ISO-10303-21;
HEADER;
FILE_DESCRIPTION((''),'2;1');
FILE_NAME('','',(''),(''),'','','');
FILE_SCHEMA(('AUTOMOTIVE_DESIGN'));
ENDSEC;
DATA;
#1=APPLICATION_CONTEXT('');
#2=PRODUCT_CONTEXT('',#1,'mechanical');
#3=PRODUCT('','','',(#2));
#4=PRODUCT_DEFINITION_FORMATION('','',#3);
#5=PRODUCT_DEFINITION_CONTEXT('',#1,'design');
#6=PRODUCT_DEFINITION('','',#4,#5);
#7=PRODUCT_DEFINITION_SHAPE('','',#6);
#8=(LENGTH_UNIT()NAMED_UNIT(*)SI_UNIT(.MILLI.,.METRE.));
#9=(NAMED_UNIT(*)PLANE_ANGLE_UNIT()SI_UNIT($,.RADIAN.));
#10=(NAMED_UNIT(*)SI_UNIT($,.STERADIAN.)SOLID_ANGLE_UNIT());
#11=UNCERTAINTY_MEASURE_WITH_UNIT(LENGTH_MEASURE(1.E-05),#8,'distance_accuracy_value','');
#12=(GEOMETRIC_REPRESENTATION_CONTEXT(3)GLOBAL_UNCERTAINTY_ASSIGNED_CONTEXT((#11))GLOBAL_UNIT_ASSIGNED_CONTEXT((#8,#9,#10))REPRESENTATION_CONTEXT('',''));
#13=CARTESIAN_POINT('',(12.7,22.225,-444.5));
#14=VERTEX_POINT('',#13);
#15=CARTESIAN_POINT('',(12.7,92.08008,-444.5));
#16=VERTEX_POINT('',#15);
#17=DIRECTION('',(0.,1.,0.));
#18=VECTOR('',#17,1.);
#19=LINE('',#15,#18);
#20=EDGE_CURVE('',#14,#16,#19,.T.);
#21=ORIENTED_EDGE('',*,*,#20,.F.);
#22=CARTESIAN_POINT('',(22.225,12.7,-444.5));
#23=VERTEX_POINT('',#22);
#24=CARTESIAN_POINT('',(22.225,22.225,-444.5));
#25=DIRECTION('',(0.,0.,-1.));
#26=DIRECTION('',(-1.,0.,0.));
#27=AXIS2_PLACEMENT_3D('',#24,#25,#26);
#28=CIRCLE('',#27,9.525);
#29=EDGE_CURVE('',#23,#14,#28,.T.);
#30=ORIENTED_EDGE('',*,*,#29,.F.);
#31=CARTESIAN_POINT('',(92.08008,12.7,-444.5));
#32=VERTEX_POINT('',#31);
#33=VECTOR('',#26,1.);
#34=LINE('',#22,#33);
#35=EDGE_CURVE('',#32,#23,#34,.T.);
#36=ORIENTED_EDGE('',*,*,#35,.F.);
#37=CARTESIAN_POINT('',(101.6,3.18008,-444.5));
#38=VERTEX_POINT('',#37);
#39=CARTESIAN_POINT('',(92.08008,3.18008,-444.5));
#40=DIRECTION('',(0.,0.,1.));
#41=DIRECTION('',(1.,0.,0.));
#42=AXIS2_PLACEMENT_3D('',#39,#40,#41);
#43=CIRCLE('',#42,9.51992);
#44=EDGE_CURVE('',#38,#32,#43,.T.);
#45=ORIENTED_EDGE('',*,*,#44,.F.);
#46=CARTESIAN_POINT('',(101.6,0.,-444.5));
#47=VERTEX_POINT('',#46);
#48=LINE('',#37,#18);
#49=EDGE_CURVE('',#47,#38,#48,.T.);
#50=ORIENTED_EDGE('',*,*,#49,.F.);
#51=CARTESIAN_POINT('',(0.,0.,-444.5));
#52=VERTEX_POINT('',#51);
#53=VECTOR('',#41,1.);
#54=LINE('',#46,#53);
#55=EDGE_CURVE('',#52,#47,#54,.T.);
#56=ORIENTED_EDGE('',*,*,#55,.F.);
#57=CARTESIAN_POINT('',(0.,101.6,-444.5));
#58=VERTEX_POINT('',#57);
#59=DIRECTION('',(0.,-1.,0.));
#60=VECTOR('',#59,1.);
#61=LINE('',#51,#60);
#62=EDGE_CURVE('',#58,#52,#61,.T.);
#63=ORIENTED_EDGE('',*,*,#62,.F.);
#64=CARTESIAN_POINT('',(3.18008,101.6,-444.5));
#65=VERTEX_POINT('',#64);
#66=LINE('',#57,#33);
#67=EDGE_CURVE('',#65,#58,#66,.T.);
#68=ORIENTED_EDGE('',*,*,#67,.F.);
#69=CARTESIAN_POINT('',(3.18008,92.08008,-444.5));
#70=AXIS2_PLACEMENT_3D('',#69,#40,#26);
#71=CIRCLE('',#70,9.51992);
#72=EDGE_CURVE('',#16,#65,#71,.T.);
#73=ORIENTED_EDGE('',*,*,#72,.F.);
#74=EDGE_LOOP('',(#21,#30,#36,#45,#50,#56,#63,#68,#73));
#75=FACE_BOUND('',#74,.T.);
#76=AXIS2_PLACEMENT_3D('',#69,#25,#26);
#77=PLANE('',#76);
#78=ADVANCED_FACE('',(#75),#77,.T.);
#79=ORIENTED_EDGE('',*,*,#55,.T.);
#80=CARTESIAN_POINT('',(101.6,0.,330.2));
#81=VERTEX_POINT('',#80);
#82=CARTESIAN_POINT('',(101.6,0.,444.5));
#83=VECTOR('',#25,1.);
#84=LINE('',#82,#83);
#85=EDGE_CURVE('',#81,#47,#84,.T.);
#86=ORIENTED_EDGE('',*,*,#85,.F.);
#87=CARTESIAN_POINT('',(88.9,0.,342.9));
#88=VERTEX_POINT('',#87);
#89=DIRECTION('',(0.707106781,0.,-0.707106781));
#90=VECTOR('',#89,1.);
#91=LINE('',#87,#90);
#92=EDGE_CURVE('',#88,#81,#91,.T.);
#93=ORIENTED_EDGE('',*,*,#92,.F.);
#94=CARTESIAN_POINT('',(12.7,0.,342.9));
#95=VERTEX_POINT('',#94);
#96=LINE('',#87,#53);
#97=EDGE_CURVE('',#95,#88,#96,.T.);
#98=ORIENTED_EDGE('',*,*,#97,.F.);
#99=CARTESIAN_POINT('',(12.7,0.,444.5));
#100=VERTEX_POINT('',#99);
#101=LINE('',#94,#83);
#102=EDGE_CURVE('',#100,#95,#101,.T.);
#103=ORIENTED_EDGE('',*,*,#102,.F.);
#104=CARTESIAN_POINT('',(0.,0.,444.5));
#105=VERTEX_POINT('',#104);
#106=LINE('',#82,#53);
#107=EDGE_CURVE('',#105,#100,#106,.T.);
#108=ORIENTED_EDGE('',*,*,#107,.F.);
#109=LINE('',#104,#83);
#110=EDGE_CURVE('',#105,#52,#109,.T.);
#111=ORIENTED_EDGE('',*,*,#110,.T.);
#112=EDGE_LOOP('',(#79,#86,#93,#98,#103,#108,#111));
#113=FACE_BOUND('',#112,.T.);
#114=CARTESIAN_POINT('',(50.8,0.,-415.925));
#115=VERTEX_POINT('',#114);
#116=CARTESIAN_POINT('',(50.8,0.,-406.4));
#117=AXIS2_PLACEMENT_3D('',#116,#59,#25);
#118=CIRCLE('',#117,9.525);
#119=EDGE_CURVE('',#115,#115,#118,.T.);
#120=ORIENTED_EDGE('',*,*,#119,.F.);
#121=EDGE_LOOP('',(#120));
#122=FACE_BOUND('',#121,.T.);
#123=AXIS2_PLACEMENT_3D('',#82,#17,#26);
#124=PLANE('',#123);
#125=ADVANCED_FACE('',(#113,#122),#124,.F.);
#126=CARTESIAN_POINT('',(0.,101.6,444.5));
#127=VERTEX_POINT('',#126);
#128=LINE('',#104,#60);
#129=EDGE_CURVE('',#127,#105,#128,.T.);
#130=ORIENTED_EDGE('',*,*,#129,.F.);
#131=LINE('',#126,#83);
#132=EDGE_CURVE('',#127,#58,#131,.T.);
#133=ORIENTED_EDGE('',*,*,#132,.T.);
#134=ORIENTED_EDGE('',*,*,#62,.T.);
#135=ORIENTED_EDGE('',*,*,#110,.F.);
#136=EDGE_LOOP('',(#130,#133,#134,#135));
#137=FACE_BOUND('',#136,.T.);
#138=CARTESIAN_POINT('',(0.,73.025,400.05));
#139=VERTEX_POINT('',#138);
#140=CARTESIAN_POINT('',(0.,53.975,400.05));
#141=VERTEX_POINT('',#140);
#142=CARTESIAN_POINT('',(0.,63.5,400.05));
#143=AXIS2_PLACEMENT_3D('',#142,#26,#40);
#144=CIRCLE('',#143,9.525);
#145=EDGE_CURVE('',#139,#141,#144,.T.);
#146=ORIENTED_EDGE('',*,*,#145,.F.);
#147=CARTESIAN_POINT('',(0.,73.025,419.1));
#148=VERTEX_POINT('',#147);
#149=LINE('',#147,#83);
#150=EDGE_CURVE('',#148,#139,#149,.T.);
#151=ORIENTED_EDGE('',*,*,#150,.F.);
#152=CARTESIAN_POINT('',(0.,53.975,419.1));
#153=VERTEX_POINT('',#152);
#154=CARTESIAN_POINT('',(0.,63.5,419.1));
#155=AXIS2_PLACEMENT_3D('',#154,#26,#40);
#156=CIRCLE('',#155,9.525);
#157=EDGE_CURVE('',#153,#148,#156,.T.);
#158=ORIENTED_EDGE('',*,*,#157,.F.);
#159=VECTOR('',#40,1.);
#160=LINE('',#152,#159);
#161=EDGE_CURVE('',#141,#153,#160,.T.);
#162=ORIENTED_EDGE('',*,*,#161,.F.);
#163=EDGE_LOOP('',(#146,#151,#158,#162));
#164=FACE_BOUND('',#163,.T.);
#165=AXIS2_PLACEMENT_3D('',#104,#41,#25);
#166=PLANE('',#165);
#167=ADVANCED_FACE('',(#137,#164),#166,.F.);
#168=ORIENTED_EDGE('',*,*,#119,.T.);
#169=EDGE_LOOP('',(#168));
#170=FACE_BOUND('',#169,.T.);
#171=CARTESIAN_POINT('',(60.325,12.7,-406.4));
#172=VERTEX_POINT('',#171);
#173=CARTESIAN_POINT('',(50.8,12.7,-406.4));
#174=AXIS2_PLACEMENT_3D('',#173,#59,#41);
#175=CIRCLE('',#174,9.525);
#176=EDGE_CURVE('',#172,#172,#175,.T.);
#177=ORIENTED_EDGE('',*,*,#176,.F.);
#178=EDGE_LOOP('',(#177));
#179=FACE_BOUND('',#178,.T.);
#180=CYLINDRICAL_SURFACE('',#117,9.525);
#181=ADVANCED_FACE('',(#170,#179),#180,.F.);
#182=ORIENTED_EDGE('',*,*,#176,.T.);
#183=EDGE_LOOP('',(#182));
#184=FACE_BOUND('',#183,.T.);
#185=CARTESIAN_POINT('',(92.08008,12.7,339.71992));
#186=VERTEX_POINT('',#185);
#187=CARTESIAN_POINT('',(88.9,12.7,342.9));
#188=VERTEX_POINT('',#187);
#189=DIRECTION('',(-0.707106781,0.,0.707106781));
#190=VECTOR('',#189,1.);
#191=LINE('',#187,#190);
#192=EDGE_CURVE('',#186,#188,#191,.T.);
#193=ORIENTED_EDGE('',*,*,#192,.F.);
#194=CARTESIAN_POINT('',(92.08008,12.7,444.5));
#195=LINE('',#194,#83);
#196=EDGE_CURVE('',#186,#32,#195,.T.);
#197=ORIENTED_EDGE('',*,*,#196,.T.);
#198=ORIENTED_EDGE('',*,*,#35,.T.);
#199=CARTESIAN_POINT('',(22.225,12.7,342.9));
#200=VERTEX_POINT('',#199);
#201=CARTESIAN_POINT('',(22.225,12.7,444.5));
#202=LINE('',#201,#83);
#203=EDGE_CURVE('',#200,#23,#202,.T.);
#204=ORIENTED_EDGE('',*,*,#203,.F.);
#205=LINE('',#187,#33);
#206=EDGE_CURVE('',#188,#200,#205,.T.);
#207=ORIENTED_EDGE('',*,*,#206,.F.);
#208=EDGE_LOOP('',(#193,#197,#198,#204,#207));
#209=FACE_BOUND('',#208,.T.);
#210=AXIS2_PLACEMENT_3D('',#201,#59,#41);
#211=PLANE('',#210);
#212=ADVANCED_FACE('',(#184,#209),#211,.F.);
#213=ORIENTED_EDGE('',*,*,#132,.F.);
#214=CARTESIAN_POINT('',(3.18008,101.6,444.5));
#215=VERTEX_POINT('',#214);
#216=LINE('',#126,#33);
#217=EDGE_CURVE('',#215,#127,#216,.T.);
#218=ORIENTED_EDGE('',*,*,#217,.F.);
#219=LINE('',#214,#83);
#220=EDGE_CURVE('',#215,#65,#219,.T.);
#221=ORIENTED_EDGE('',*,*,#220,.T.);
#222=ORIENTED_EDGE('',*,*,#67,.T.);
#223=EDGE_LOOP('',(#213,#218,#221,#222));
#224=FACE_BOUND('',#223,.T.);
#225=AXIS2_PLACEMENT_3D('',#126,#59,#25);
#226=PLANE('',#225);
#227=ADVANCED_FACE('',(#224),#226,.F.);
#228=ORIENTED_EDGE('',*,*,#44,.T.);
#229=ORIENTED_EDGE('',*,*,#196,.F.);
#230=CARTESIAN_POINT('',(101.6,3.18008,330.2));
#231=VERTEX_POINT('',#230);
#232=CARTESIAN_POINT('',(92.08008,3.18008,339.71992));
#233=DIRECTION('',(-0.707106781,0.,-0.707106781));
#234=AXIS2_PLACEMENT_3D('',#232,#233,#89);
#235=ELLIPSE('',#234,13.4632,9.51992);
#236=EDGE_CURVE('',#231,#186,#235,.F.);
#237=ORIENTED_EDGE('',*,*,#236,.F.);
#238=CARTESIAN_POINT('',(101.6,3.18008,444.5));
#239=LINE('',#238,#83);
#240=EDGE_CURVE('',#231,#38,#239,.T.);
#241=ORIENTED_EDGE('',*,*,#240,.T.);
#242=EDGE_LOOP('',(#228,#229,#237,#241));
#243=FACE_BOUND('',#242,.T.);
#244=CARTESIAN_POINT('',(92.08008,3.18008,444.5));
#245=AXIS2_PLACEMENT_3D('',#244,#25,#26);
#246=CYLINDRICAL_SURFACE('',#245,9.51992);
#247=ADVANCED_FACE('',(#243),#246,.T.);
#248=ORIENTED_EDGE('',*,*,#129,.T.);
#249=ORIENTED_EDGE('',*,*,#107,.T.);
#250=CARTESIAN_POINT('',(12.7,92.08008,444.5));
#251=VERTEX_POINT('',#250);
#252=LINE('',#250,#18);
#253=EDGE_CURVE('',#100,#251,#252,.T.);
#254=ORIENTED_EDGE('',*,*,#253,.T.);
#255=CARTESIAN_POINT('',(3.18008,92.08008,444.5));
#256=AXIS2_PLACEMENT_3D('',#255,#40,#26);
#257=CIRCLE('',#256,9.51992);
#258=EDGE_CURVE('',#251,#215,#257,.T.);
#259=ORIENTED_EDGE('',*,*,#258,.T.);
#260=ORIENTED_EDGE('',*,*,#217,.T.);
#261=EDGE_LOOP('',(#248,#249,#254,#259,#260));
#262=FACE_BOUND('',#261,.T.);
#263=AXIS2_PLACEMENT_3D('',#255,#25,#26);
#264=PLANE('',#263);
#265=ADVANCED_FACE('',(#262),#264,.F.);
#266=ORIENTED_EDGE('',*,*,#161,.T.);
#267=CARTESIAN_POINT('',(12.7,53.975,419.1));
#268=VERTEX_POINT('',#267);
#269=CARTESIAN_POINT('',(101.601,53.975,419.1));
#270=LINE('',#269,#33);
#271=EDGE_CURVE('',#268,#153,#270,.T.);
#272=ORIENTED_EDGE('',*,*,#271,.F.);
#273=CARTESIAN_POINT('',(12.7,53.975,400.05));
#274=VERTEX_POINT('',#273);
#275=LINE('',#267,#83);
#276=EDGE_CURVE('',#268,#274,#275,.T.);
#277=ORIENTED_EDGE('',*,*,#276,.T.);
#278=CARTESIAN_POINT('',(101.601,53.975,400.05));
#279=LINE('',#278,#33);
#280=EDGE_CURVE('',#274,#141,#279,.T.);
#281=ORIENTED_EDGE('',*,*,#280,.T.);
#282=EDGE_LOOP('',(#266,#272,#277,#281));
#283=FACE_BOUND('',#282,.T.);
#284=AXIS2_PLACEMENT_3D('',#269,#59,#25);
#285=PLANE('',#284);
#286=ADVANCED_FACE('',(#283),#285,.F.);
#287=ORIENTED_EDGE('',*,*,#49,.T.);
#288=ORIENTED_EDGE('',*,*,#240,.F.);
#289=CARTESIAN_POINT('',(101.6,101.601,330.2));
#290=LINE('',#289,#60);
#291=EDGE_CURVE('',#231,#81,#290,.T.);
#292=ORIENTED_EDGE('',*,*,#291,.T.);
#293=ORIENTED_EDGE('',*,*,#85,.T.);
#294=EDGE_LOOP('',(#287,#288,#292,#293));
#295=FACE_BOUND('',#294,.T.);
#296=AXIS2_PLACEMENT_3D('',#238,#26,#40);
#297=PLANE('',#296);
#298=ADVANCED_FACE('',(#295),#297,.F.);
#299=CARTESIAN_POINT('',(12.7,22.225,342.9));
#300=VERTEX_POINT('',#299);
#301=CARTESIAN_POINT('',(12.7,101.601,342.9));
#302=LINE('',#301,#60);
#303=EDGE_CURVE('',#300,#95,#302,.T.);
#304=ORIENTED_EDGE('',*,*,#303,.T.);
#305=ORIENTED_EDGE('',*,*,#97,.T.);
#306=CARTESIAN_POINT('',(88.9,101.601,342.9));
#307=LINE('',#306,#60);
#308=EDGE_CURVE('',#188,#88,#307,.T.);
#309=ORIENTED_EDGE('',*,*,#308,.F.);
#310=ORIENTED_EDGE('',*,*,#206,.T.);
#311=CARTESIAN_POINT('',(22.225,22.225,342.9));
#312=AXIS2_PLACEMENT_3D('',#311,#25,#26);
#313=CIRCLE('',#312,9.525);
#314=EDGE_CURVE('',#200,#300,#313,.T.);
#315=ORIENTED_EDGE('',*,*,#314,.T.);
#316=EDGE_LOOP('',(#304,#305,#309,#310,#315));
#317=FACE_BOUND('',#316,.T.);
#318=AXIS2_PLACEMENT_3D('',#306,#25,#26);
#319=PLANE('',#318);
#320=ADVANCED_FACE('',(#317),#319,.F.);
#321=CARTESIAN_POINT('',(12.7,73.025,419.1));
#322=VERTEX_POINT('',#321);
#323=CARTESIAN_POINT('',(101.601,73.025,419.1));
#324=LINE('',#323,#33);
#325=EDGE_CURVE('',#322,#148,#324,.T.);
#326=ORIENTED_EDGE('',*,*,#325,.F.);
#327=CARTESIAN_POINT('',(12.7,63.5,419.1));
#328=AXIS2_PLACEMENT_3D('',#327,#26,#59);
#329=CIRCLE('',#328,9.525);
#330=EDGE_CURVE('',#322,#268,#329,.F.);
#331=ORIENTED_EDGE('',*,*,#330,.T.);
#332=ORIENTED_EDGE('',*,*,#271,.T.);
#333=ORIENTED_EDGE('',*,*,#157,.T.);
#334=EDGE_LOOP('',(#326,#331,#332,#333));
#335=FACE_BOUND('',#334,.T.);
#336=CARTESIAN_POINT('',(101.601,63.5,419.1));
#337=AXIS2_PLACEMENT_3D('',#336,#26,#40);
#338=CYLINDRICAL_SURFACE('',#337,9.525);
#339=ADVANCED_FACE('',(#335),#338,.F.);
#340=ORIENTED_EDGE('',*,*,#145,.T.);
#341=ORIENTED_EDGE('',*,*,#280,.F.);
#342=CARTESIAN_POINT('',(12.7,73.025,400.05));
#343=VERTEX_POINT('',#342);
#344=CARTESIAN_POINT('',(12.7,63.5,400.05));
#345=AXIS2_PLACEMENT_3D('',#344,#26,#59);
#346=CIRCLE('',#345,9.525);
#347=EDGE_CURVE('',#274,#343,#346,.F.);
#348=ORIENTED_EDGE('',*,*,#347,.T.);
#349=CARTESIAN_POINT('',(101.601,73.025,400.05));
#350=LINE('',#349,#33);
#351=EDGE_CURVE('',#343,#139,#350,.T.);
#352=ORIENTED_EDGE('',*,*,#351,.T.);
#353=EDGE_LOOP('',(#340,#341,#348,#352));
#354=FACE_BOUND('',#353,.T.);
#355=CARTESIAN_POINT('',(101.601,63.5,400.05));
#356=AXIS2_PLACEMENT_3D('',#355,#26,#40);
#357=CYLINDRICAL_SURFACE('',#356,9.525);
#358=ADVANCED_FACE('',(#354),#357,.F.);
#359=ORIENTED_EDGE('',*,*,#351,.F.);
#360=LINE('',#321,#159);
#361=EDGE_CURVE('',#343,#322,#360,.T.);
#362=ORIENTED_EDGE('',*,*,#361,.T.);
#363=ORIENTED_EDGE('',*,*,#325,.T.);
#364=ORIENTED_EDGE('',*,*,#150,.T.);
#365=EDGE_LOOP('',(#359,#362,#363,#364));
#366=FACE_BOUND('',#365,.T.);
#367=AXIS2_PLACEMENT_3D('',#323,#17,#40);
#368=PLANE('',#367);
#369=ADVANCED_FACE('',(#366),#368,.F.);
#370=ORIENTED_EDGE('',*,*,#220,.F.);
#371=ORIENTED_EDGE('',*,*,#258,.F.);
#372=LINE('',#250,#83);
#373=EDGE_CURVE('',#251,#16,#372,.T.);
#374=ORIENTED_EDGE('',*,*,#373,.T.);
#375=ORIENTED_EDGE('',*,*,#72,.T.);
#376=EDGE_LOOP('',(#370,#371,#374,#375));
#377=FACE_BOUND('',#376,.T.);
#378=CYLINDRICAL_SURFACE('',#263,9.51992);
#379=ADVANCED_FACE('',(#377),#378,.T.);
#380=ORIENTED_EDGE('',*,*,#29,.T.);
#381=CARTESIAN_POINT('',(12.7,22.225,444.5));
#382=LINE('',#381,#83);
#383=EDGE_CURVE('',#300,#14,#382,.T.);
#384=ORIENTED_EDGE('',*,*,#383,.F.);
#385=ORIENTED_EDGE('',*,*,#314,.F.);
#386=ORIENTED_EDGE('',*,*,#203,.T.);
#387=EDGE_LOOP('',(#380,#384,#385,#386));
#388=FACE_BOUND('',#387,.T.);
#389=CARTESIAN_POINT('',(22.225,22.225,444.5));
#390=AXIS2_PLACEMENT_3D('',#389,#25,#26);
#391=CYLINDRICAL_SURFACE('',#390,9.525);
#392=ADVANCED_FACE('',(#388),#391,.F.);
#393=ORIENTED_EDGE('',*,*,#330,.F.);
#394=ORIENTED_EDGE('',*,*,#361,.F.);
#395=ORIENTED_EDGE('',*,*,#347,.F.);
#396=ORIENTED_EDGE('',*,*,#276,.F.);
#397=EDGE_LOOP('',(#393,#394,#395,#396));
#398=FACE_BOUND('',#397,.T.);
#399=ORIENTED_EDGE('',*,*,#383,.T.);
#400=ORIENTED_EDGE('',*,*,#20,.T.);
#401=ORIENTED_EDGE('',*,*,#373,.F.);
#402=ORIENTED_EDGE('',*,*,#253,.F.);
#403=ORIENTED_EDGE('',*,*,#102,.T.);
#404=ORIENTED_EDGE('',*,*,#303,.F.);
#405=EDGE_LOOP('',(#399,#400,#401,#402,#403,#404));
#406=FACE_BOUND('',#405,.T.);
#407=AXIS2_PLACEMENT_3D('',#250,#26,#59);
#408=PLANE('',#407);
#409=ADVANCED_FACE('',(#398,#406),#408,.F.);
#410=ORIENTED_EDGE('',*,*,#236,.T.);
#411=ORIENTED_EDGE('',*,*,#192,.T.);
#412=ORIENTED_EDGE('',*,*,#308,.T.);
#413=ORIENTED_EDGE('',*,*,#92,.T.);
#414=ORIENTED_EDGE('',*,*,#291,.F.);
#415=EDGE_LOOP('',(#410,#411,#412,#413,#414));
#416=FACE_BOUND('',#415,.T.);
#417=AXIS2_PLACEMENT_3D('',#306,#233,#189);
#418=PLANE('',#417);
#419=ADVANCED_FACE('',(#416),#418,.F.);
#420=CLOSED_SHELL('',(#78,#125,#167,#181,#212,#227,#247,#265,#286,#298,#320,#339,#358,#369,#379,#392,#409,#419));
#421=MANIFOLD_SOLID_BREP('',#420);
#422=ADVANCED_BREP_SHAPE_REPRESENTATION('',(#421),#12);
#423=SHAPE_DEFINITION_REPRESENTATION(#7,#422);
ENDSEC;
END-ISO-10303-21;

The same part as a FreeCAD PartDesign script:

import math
import FreeCAD as App
import Part
import Sketcher
Q = App.Units.Quantity

doc = App.newDocument("Part")
body = doc.addObject("PartDesign::Body", "Body")

sketch1 = body.newObject("Sketcher::SketchObject", "Sketch")
sketch1.AttachmentSupport = (doc.getObject("XY_Plane"), [""])
sketch1.MapMode = "FlatFace"
sketch1.addGeometry(Part.LineSegment(App.Vector(0, 101.6, 0), App.Vector(0, 0, 0)), False)
sketch1.addGeometry(Part.LineSegment(App.Vector(0, 0, 0), App.Vector(101.6, 0, 0)), False)
sketch1.addGeometry(Part.LineSegment(App.Vector(101.6, 0, 0), App.Vector(101.6, 3.2, 0)), False)
sketch1.addGeometry(Part.ArcOfCircle(Part.Circle(App.Vector(92.1, 3.2, 0), App.Vector(0, 0, 1), 9.5), math.radians(0), math.radians(90)), False)
sketch1.addGeometry(Part.LineSegment(App.Vector(92.1, 12.7, 0), App.Vector(22.2, 12.7, 0)), False)
sketch1.addGeometry(Part.ArcOfCircle(Part.Circle(App.Vector(22.2, 22.2, 0), App.Vector(0, 0, 1), 9.5), math.radians(180), math.radians(270)), False)
sketch1.addGeometry(Part.LineSegment(App.Vector(12.7, 22.2, 0), App.Vector(12.7, 92.1, 0)), False)
sketch1.addGeometry(Part.ArcOfCircle(Part.Circle(App.Vector(3.2, 92.1, 0), App.Vector(0, 0, 1), 9.5), math.radians(0), math.radians(90)), False)
sketch1.addGeometry(Part.LineSegment(App.Vector(3.2, 101.6, 0), App.Vector(0, 101.6, 0)), False)
sketch1.addConstraint(Sketcher.Constraint("Coincident", 0, 2, 1, 1))
sketch1.addConstraint(Sketcher.Constraint("Coincident", 1, 2, 2, 1))
sketch1.addConstraint(Sketcher.Constraint("Tangent", 2, 2, 3, 1))
sketch1.addConstraint(Sketcher.Constraint("Tangent", 3, 2, 4, 1))
sketch1.addConstraint(Sketcher.Constraint("Tangent", 4, 2, 5, 2))
sketch1.addConstraint(Sketcher.Constraint("Tangent", 5, 1, 6, 1))
sketch1.addConstraint(Sketcher.Constraint("Tangent", 6, 2, 7, 1))
sketch1.addConstraint(Sketcher.Constraint("Tangent", 7, 2, 8, 1))
sketch1.addConstraint(Sketcher.Constraint("Coincident", 8, 2, 0, 1))
sketch1.addConstraint(Sketcher.Constraint("Vertical", 0))
sketch1.addConstraint(Sketcher.Constraint("Horizontal", 1))
sketch1.addConstraint(Sketcher.Constraint("Vertical", 2))
sketch1.addConstraint(Sketcher.Constraint("Horizontal", 4))
sketch1.addConstraint(Sketcher.Constraint("Vertical", 6))
sketch1.addConstraint(Sketcher.Constraint("Horizontal", 8))
sketch1.addConstraint(Sketcher.Constraint("Coincident", 0, 2, -1, 1))
sketch1.addConstraint(Sketcher.Constraint("Equal", 3, 7))
sketch1.addConstraint(Sketcher.Constraint("Equal", 1, 0))
sketch1.addConstraint(Sketcher.Constraint("Equal", 8, 2))
sketch1.addConstraint(Sketcher.Constraint("DistanceX", 1, 1, 1, 2, Q("4 in")))
sketch1.addConstraint(Sketcher.Constraint("Radius", 5, Q("0.375 in")))
sketch1.addConstraint(Sketcher.Constraint("DistanceY", -1, 1, 3, 2, Q("0.5 in")))
sketch1.addConstraint(Sketcher.Constraint("Radius", 3, Q("0.3748 in")))
pad1 = body.newObject("PartDesign::Pad", "Pad")
pad1.Profile = sketch1
pad1.Length = Q("35 in")
pad1.Midplane = True

sketch2 = body.newObject("Sketcher::SketchObject", "Sketch001")
sketch2.AttachmentSupport = (doc.getObject("XZ_Plane"), [""])
sketch2.MapMode = "FlatFace"
sketch2.addGeometry(Part.LineSegment(App.Vector(13, 343, 0), App.Vector(89, 343, 0)), False)
sketch2.addGeometry(Part.LineSegment(App.Vector(89, 343, 0), App.Vector(102, 330, 0)), False)
sketch2.addGeometry(Part.LineSegment(App.Vector(102, 330, 0), App.Vector(102, 444, 0)), False)
sketch2.addGeometry(Part.LineSegment(App.Vector(102, 444, 0), App.Vector(13, 444, 0)), False)
sketch2.addGeometry(Part.LineSegment(App.Vector(13, 444, 0), App.Vector(13, 343, 0)), False)
sketch2.addConstraint(Sketcher.Constraint("Coincident", 0, 2, 1, 1))
sketch2.addConstraint(Sketcher.Constraint("Coincident", 1, 2, 2, 1))
sketch2.addConstraint(Sketcher.Constraint("Coincident", 2, 2, 3, 1))
sketch2.addConstraint(Sketcher.Constraint("Coincident", 3, 2, 4, 1))
sketch2.addConstraint(Sketcher.Constraint("Coincident", 4, 2, 0, 1))
sketch2.addConstraint(Sketcher.Constraint("Horizontal", 0))
sketch2.addConstraint(Sketcher.Constraint("Vertical", 2))
sketch2.addConstraint(Sketcher.Constraint("Horizontal", 3))
sketch2.addConstraint(Sketcher.Constraint("Vertical", 4))
sketch2.addConstraint(Sketcher.Constraint("DistanceX", 0, 1, 0, 2, Q("3 in")))
sketch2.addConstraint(Sketcher.Constraint("DistanceY", 4, 2, 4, 1, Q("4 in")))
sketch2.addConstraint(Sketcher.Constraint("DistanceX", 3, 2, 3, 1, Q("3.5 in")))
sketch2.addConstraint(Sketcher.Constraint("DistanceY", 2, 1, 2, 2, Q("4.5 in")))
sketch2.addConstraint(Sketcher.Constraint("DistanceX", -1, 1, 1, 2, Q("4 in")))
sketch2.addConstraint(Sketcher.Constraint("DistanceY", -1, 1, 1, 2, Q("13 in")))
pocket1 = body.newObject("PartDesign::Pocket", "Pocket")
pocket1.Profile = sketch2
pocket1.Length = Q("0.875 in")

sketch3 = body.newObject("Sketcher::SketchObject", "Sketch002")
sketch3.AttachmentSupport = (doc.getObject("YZ_Plane"), [""])
sketch3.MapMode = "FlatFace"
sketch3.addGeometry(Part.LineSegment(App.Vector(54, 400, 0), App.Vector(54, 419, 0)), False)
sketch3.addGeometry(Part.ArcOfCircle(Part.Circle(App.Vector(64, 419, 0), App.Vector(0, 0, 1), 10), math.radians(0), math.radians(180)), False)
sketch3.addGeometry(Part.LineSegment(App.Vector(73, 419, 0), App.Vector(73, 400, 0)), False)
sketch3.addGeometry(Part.ArcOfCircle(Part.Circle(App.Vector(64, 400, 0), App.Vector(0, 0, 1), 10), math.radians(180), math.radians(360)), False)
sketch3.addConstraint(Sketcher.Constraint("Tangent", 0, 2, 1, 2))
sketch3.addConstraint(Sketcher.Constraint("Tangent", 1, 1, 2, 1))
sketch3.addConstraint(Sketcher.Constraint("Tangent", 2, 2, 3, 2))
sketch3.addConstraint(Sketcher.Constraint("Tangent", 3, 1, 0, 1))
sketch3.addConstraint(Sketcher.Constraint("Vertical", 0))
sketch3.addConstraint(Sketcher.Constraint("Vertical", 2))
sketch3.addConstraint(Sketcher.Constraint("Radius", 1, Q("0.375 in")))
sketch3.addConstraint(Sketcher.Constraint("DistanceY", 0, 1, 0, 2, Q("0.75 in")))
sketch3.addConstraint(Sketcher.Constraint("DistanceX", -1, 1, 1, 3, Q("2.5 in")))
sketch3.addConstraint(Sketcher.Constraint("DistanceY", -1, 1, 1, 3, Q("16.5 in")))
pocket2 = body.newObject("PartDesign::Pocket", "Pocket001")
pocket2.Profile = sketch3
pocket2.Type = "UpToFirst"
pocket2.Reversed = True

sketch4 = body.newObject("Sketcher::SketchObject", "Sketch003")
sketch4.AttachmentSupport = (doc.getObject("XZ_Plane"), [""])
sketch4.MapMode = "FlatFace"
sketch4.addGeometry(Part.Circle(App.Vector(51, -406, 0), App.Vector(0, 0, 1), 10), False)
sketch4.addConstraint(Sketcher.Constraint("Diameter", 0, Q("0.75 in")))
sketch4.addConstraint(Sketcher.Constraint("DistanceX", -1, 1, 0, 3, Q("2 in")))
sketch4.addConstraint(Sketcher.Constraint("DistanceY", 0, 3, -1, 1, Q("16 in")))
doc.recompute()
hole = body.newObject("PartDesign::Hole", "Hole")
hole.Profile = sketch4
hole.ThreadType = "None"
hole.Diameter = Q("0.75 in")
hole.DepthType = "Dimension"
hole.Depth = Q("2 in")
hole.DrillPoint = "Angled"
hole.DrillPointAngle = 118

doc.recompute()
